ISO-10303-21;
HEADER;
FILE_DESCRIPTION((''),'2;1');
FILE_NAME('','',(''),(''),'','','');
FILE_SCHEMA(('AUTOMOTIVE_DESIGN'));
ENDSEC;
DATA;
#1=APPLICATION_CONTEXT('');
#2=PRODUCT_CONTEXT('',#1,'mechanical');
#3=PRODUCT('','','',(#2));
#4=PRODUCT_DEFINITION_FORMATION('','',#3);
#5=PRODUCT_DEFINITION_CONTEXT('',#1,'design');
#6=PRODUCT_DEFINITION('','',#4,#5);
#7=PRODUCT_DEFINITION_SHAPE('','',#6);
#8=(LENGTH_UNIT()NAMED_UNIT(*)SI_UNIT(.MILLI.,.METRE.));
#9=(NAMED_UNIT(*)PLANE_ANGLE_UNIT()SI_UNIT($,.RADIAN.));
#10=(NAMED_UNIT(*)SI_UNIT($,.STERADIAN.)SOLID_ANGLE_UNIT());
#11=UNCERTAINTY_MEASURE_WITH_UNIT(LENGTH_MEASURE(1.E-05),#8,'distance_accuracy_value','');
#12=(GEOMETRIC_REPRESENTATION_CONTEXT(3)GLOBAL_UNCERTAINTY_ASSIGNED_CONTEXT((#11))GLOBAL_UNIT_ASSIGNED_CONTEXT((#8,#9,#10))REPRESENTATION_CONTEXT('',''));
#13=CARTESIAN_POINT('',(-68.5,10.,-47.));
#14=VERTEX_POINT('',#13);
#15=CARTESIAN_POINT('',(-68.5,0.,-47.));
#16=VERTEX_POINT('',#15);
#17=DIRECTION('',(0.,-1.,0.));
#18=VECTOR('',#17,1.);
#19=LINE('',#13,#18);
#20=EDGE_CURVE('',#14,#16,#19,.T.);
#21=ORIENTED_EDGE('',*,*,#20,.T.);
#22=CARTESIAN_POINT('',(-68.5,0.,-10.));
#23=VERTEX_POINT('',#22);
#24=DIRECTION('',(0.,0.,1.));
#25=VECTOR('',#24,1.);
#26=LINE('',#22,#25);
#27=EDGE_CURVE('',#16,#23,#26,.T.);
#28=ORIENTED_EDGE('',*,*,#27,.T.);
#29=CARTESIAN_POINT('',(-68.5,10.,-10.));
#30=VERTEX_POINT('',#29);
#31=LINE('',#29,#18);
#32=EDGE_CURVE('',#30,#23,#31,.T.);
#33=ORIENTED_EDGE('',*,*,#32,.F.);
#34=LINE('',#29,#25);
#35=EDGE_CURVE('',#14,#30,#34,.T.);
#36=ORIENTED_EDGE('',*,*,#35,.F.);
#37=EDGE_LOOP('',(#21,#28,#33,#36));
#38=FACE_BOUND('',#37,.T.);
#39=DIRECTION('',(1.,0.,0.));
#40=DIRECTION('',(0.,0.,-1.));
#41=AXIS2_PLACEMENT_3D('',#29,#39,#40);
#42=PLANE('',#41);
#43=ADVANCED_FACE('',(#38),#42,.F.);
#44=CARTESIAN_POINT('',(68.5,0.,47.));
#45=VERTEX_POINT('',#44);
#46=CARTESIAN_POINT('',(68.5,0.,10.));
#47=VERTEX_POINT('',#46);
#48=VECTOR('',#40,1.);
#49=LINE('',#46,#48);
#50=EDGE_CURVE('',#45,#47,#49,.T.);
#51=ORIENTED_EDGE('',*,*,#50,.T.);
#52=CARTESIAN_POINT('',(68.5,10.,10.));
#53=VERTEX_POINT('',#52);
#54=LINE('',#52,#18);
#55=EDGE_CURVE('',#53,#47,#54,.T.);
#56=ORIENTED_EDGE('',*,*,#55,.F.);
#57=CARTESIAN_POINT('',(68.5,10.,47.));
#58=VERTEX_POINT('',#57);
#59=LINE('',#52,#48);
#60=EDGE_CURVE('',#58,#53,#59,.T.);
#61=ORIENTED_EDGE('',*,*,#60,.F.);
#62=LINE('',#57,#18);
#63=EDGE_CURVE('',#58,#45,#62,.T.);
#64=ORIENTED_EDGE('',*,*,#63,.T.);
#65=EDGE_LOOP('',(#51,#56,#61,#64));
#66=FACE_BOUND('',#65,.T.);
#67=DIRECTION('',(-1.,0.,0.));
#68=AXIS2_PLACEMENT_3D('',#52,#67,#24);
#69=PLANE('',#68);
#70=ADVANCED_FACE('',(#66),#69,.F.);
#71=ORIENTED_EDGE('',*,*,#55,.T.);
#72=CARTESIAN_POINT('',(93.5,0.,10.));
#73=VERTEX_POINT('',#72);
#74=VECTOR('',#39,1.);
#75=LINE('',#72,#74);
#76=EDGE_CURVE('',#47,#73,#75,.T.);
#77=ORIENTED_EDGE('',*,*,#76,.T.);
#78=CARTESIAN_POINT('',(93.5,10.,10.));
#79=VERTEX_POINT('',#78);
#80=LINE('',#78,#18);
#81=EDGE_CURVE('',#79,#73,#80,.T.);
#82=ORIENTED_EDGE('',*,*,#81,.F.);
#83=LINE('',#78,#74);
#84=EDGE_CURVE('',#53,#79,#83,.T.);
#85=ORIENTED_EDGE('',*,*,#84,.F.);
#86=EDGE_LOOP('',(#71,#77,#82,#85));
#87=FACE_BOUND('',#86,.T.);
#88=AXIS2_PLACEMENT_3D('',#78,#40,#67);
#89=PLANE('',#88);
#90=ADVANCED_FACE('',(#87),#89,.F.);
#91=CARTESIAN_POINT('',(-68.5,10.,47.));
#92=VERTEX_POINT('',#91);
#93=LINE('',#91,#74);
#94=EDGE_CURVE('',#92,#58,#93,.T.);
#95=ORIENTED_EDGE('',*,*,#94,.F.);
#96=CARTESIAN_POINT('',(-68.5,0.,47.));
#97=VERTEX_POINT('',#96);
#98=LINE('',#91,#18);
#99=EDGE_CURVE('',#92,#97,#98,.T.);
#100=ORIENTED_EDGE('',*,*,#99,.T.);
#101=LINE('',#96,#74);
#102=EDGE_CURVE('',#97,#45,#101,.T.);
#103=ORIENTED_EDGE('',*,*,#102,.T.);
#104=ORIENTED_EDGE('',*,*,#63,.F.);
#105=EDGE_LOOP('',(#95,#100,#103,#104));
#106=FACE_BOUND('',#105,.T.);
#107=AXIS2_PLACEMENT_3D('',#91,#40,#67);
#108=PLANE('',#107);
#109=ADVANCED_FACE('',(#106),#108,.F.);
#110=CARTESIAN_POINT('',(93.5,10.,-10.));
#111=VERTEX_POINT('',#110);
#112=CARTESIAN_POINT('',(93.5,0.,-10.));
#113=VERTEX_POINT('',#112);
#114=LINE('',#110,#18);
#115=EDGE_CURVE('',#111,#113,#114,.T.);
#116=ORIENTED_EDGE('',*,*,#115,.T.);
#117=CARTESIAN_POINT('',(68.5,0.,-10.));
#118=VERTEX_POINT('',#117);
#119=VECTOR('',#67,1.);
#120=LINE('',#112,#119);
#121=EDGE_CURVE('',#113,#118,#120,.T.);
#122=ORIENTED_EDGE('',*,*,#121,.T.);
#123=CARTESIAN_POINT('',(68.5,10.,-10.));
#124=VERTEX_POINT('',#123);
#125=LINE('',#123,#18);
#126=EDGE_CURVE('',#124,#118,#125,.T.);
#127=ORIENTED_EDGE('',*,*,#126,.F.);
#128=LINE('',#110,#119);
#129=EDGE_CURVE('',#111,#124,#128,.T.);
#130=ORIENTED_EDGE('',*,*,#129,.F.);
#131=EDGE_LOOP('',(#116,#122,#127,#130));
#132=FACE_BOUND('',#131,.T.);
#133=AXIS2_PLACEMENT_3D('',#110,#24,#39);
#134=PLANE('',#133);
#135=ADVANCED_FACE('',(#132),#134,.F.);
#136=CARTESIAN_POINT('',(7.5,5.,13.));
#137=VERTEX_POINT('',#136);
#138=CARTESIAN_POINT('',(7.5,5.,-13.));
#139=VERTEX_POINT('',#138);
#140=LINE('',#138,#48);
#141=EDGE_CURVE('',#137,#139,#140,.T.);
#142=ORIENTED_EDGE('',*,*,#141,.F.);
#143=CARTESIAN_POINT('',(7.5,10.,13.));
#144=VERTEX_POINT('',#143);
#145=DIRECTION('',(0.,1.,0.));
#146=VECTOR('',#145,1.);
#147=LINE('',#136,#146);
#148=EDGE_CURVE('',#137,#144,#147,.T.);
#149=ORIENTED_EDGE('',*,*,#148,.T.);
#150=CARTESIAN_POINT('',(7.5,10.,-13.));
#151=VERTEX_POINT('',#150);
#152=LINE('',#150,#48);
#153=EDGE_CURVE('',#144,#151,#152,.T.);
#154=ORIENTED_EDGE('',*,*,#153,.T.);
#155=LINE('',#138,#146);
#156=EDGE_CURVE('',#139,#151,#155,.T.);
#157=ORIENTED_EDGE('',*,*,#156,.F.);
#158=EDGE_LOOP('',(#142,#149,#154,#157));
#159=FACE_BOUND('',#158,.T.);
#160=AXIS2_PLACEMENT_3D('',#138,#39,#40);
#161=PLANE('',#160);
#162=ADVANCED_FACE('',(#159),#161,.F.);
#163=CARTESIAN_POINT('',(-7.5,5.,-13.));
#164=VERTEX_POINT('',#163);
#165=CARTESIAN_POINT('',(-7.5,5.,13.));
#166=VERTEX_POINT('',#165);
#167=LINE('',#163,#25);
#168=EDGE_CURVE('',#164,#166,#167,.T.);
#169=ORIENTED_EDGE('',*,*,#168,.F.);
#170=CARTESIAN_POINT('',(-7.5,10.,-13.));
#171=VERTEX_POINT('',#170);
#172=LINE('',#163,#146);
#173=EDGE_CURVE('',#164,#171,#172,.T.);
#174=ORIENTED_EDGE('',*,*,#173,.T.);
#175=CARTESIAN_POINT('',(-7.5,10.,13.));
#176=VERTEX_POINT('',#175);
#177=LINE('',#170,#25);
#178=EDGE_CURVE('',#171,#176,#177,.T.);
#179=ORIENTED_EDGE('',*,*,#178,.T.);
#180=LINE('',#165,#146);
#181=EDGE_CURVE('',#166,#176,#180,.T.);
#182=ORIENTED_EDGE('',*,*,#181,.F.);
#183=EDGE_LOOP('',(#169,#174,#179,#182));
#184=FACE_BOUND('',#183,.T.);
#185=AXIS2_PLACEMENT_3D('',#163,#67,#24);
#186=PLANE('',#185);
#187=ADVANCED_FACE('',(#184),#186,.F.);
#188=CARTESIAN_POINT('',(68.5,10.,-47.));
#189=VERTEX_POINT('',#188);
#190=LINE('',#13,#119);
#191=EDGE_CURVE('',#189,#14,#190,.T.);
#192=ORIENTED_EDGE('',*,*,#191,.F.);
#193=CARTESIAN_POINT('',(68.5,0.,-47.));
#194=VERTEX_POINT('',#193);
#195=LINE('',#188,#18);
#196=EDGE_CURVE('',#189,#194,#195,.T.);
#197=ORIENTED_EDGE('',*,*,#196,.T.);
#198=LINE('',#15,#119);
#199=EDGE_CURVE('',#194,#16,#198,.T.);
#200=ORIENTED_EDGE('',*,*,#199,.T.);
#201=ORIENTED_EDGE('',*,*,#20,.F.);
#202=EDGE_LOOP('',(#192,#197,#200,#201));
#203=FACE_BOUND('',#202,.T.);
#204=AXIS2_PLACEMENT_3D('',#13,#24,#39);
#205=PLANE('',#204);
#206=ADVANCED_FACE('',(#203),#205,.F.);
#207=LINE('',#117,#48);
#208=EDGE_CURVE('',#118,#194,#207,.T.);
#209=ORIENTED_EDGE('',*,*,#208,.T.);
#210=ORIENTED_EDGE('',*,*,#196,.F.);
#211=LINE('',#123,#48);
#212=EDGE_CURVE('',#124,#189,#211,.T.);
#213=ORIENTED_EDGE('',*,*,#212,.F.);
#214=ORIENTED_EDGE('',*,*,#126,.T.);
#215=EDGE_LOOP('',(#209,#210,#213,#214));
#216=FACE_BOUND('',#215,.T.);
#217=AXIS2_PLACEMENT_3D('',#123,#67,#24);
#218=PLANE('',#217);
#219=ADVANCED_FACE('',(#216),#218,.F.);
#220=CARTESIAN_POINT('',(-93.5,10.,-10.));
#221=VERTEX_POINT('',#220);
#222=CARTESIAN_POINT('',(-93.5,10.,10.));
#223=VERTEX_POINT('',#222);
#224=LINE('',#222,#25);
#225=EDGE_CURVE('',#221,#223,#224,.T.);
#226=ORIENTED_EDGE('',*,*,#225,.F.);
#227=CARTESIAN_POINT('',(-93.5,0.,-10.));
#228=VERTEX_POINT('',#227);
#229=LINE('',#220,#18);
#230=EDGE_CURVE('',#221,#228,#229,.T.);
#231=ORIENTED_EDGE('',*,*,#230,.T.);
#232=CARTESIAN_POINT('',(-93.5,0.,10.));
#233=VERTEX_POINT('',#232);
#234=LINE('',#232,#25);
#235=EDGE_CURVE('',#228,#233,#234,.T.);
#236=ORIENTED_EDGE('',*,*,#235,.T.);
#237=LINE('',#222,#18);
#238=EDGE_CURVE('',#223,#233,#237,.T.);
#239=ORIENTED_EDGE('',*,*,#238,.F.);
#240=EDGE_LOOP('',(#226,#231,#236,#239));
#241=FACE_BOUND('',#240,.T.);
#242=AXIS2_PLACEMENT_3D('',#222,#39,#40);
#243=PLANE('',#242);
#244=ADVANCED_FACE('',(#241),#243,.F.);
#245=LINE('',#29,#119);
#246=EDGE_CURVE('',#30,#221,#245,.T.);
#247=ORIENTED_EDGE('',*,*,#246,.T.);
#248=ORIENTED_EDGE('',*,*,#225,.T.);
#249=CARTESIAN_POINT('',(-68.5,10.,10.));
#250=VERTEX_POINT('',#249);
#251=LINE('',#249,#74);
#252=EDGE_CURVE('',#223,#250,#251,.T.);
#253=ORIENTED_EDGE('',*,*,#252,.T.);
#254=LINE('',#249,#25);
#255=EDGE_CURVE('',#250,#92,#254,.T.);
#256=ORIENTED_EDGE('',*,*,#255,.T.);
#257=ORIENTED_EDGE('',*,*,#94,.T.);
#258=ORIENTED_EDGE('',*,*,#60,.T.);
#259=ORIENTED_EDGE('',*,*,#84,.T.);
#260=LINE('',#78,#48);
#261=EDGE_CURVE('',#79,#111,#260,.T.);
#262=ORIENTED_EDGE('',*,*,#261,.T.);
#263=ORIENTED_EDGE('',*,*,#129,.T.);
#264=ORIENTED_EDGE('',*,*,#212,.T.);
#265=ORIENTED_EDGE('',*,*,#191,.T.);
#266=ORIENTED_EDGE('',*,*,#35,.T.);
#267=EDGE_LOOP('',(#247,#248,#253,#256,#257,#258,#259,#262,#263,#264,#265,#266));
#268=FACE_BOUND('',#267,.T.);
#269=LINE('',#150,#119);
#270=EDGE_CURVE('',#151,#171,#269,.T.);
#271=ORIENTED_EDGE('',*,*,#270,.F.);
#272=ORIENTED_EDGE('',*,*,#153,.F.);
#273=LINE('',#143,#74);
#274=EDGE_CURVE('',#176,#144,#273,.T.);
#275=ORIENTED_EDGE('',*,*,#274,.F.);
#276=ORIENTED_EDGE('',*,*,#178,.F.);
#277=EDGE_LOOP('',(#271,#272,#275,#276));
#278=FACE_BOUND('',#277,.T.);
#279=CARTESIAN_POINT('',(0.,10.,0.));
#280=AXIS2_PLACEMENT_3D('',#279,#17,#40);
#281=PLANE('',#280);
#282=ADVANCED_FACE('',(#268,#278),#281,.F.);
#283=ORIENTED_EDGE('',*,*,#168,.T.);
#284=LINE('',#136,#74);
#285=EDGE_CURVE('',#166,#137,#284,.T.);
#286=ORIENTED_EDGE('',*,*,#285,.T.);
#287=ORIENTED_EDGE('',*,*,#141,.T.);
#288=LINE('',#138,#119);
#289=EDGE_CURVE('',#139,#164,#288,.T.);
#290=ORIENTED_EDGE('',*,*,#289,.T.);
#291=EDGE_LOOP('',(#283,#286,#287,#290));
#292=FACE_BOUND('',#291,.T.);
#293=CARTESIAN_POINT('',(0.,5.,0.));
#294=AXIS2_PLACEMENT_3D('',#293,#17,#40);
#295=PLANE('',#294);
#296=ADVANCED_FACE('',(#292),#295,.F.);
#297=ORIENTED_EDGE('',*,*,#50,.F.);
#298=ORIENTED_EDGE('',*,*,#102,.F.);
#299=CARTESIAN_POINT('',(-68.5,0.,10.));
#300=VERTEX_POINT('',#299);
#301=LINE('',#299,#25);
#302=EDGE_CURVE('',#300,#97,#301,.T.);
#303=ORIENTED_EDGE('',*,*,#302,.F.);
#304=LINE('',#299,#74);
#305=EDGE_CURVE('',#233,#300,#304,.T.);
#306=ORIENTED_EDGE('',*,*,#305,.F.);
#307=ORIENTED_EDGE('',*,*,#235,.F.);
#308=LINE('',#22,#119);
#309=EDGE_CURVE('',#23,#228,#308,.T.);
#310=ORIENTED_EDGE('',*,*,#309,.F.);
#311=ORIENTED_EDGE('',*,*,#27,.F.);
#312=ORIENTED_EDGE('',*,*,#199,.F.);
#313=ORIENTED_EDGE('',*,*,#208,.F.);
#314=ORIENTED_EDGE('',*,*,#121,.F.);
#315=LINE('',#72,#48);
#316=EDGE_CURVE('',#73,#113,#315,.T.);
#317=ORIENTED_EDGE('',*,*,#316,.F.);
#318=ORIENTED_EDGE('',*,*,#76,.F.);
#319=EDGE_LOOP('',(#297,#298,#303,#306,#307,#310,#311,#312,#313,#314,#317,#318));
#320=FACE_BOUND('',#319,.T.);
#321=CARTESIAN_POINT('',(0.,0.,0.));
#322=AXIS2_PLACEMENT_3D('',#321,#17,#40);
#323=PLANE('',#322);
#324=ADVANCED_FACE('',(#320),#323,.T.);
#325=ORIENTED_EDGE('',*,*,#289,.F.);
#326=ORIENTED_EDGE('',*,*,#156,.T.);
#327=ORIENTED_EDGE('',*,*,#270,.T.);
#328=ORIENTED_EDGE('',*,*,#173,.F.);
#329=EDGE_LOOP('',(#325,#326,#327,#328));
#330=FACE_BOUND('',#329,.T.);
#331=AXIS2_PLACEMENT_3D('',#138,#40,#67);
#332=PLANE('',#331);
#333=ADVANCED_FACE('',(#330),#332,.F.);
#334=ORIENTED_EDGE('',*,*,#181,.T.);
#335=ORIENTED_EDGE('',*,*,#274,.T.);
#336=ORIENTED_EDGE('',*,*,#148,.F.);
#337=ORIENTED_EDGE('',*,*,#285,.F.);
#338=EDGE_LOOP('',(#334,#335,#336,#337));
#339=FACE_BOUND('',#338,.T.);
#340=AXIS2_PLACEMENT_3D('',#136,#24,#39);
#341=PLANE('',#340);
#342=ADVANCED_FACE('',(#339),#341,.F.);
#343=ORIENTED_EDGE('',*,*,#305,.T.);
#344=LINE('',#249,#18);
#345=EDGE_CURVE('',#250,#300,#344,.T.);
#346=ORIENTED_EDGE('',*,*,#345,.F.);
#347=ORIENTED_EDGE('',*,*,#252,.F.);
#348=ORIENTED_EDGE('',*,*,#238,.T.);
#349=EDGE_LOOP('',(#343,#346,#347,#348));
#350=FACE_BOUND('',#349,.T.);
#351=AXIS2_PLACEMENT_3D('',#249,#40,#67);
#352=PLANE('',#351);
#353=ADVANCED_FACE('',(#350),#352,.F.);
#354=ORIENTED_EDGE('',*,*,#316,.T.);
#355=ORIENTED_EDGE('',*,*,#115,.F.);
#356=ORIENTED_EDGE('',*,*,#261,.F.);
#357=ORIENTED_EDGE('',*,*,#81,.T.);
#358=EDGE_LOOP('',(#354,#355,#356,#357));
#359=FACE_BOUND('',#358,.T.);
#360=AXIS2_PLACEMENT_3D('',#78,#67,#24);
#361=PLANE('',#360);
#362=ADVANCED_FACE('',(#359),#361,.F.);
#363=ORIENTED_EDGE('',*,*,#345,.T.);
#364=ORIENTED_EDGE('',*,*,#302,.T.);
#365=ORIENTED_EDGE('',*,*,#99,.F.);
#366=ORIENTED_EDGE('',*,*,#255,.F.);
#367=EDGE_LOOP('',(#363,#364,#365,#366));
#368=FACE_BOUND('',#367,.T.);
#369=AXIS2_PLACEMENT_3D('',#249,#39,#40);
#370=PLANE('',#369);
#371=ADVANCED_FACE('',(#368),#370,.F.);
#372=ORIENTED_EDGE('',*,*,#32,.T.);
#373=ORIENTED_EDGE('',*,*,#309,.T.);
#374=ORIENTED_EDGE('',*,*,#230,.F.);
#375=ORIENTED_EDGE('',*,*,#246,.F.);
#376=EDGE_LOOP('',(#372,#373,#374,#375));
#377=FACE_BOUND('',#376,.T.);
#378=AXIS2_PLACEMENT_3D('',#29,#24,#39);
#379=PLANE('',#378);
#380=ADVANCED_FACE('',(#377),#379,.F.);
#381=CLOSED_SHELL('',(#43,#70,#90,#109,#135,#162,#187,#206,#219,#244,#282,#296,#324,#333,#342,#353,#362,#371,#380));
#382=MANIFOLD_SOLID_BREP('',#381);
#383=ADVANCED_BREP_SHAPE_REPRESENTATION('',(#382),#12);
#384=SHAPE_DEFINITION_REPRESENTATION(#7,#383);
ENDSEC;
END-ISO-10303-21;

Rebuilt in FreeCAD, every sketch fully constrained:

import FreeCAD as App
import Part
import Sketcher


def add_polygon(sketch, points):
    """Adds a closed chain of lines whose ends are joined by coincident constraints."""
    first, n = sketch.GeometryCount, len(points)
    for a, b in zip(points, points[1:] + points[:1]):
        sketch.addGeometry(Part.LineSegment(App.Vector(*a, 0), App.Vector(*b, 0)), False)
    for i in range(n):
        sketch.addConstraint(Sketcher.Constraint("Coincident", first + i, 2, first + (i + 1) % n, 1))

doc = App.newDocument("Part")
body = doc.addObject("PartDesign::Body", "Body")

sketch1 = body.newObject("Sketcher::SketchObject", "Sketch")
sketch1.AttachmentSupport = (doc.getObject("XZ_Plane"), [""])
sketch1.MapMode = "FlatFace"
add_polygon(sketch1, [(68, 10), (94, 10), (94, -10), (68, -10), (68, -47), (-68, -47), (-68, -10), (-94, -10), (-94, 10), (-68, 10), (-68, 47), (68, 47)])
sketch1.addConstraint(Sketcher.Constraint("Horizontal", 0))
sketch1.addConstraint(Sketcher.Constraint("Vertical", 1))
sketch1.addConstraint(Sketcher.Constraint("Horizontal", 2))
sketch1.addConstraint(Sketcher.Constraint("Vertical", 3))
sketch1.addConstraint(Sketcher.Constraint("Horizontal", 4))
sketch1.addConstraint(Sketcher.Constraint("Vertical", 5))
sketch1.addConstraint(Sketcher.Constraint("Horizontal", 6))
sketch1.addConstraint(Sketcher.Constraint("Vertical", 7))
sketch1.addConstraint(Sketcher.Constraint("Horizontal", 8))
sketch1.addConstraint(Sketcher.Constraint("Vertical", 9))
sketch1.addConstraint(Sketcher.Constraint("Horizontal", 10))
sketch1.addConstraint(Sketcher.Constraint("Vertical", 11))
sketch1.addConstraint(Sketcher.Constraint("Symmetric", 0, 2, 6, 2, -1, 1))
sketch1.addConstraint(Sketcher.Constraint("Symmetric", 2, 2, 8, 2, -1, 1))
sketch1.addConstraint(Sketcher.Constraint("Symmetric", 4, 2, 10, 2, -1, 1))
sketch1.addConstraint(Sketcher.Constraint("Symmetric", 2, 2, 5, 2, -2))
sketch1.addConstraint(Sketcher.Constraint("DistanceX", 0, 1, 0, 2, 25.0))
sketch1.addConstraint(Sketcher.Constraint("DistanceX", 4, 2, 4, 1, 137.0))
sketch1.addConstraint(Sketcher.Constraint("DistanceY", 1, 2, 1, 1, 20.0))
sketch1.addConstraint(Sketcher.Constraint("DistanceY", 3, 2, 3, 1, 37.0))
pad1 = body.newObject("PartDesign::Pad", "Pad")
pad1.Profile = sketch1
pad1.Length = 10
pad1.Reversed = True

sketch2 = body.newObject("Sketcher::SketchObject", "Sketch001")
sketch2.AttachmentSupport = (doc.getObject("XZ_Plane"), [""])
sketch2.MapMode = "FlatFace"
sketch2.AttachmentOffset = App.Placement(App.Vector(0, 0, -10), App.Rotation())
add_polygon(sketch2, [(-8, -13), (-8, 13), (8, 13), (8, -13)])
sketch2.addConstraint(Sketcher.Constraint("Vertical", 0))
sketch2.addConstraint(Sketcher.Constraint("Horizontal", 1))
sketch2.addConstraint(Sketcher.Constraint("Vertical", 2))
sketch2.addConstraint(Sketcher.Constraint("Horizontal", 3))
sketch2.addConstraint(Sketcher.Constraint("Symmetric", 0, 2, 2, 2, -1, 1))
sketch2.addConstraint(Sketcher.Constraint("DistanceX", 1, 1, 1, 2, 15.0))
sketch2.addConstraint(Sketcher.Constraint("DistanceY", 0, 1, 0, 2, 26.0))
pocket1 = body.newObject("PartDesign::Pocket", "Pocket")
pocket1.Profile = sketch2
pocket1.Length = 5
pocket1.Reversed = True

doc.recompute()
